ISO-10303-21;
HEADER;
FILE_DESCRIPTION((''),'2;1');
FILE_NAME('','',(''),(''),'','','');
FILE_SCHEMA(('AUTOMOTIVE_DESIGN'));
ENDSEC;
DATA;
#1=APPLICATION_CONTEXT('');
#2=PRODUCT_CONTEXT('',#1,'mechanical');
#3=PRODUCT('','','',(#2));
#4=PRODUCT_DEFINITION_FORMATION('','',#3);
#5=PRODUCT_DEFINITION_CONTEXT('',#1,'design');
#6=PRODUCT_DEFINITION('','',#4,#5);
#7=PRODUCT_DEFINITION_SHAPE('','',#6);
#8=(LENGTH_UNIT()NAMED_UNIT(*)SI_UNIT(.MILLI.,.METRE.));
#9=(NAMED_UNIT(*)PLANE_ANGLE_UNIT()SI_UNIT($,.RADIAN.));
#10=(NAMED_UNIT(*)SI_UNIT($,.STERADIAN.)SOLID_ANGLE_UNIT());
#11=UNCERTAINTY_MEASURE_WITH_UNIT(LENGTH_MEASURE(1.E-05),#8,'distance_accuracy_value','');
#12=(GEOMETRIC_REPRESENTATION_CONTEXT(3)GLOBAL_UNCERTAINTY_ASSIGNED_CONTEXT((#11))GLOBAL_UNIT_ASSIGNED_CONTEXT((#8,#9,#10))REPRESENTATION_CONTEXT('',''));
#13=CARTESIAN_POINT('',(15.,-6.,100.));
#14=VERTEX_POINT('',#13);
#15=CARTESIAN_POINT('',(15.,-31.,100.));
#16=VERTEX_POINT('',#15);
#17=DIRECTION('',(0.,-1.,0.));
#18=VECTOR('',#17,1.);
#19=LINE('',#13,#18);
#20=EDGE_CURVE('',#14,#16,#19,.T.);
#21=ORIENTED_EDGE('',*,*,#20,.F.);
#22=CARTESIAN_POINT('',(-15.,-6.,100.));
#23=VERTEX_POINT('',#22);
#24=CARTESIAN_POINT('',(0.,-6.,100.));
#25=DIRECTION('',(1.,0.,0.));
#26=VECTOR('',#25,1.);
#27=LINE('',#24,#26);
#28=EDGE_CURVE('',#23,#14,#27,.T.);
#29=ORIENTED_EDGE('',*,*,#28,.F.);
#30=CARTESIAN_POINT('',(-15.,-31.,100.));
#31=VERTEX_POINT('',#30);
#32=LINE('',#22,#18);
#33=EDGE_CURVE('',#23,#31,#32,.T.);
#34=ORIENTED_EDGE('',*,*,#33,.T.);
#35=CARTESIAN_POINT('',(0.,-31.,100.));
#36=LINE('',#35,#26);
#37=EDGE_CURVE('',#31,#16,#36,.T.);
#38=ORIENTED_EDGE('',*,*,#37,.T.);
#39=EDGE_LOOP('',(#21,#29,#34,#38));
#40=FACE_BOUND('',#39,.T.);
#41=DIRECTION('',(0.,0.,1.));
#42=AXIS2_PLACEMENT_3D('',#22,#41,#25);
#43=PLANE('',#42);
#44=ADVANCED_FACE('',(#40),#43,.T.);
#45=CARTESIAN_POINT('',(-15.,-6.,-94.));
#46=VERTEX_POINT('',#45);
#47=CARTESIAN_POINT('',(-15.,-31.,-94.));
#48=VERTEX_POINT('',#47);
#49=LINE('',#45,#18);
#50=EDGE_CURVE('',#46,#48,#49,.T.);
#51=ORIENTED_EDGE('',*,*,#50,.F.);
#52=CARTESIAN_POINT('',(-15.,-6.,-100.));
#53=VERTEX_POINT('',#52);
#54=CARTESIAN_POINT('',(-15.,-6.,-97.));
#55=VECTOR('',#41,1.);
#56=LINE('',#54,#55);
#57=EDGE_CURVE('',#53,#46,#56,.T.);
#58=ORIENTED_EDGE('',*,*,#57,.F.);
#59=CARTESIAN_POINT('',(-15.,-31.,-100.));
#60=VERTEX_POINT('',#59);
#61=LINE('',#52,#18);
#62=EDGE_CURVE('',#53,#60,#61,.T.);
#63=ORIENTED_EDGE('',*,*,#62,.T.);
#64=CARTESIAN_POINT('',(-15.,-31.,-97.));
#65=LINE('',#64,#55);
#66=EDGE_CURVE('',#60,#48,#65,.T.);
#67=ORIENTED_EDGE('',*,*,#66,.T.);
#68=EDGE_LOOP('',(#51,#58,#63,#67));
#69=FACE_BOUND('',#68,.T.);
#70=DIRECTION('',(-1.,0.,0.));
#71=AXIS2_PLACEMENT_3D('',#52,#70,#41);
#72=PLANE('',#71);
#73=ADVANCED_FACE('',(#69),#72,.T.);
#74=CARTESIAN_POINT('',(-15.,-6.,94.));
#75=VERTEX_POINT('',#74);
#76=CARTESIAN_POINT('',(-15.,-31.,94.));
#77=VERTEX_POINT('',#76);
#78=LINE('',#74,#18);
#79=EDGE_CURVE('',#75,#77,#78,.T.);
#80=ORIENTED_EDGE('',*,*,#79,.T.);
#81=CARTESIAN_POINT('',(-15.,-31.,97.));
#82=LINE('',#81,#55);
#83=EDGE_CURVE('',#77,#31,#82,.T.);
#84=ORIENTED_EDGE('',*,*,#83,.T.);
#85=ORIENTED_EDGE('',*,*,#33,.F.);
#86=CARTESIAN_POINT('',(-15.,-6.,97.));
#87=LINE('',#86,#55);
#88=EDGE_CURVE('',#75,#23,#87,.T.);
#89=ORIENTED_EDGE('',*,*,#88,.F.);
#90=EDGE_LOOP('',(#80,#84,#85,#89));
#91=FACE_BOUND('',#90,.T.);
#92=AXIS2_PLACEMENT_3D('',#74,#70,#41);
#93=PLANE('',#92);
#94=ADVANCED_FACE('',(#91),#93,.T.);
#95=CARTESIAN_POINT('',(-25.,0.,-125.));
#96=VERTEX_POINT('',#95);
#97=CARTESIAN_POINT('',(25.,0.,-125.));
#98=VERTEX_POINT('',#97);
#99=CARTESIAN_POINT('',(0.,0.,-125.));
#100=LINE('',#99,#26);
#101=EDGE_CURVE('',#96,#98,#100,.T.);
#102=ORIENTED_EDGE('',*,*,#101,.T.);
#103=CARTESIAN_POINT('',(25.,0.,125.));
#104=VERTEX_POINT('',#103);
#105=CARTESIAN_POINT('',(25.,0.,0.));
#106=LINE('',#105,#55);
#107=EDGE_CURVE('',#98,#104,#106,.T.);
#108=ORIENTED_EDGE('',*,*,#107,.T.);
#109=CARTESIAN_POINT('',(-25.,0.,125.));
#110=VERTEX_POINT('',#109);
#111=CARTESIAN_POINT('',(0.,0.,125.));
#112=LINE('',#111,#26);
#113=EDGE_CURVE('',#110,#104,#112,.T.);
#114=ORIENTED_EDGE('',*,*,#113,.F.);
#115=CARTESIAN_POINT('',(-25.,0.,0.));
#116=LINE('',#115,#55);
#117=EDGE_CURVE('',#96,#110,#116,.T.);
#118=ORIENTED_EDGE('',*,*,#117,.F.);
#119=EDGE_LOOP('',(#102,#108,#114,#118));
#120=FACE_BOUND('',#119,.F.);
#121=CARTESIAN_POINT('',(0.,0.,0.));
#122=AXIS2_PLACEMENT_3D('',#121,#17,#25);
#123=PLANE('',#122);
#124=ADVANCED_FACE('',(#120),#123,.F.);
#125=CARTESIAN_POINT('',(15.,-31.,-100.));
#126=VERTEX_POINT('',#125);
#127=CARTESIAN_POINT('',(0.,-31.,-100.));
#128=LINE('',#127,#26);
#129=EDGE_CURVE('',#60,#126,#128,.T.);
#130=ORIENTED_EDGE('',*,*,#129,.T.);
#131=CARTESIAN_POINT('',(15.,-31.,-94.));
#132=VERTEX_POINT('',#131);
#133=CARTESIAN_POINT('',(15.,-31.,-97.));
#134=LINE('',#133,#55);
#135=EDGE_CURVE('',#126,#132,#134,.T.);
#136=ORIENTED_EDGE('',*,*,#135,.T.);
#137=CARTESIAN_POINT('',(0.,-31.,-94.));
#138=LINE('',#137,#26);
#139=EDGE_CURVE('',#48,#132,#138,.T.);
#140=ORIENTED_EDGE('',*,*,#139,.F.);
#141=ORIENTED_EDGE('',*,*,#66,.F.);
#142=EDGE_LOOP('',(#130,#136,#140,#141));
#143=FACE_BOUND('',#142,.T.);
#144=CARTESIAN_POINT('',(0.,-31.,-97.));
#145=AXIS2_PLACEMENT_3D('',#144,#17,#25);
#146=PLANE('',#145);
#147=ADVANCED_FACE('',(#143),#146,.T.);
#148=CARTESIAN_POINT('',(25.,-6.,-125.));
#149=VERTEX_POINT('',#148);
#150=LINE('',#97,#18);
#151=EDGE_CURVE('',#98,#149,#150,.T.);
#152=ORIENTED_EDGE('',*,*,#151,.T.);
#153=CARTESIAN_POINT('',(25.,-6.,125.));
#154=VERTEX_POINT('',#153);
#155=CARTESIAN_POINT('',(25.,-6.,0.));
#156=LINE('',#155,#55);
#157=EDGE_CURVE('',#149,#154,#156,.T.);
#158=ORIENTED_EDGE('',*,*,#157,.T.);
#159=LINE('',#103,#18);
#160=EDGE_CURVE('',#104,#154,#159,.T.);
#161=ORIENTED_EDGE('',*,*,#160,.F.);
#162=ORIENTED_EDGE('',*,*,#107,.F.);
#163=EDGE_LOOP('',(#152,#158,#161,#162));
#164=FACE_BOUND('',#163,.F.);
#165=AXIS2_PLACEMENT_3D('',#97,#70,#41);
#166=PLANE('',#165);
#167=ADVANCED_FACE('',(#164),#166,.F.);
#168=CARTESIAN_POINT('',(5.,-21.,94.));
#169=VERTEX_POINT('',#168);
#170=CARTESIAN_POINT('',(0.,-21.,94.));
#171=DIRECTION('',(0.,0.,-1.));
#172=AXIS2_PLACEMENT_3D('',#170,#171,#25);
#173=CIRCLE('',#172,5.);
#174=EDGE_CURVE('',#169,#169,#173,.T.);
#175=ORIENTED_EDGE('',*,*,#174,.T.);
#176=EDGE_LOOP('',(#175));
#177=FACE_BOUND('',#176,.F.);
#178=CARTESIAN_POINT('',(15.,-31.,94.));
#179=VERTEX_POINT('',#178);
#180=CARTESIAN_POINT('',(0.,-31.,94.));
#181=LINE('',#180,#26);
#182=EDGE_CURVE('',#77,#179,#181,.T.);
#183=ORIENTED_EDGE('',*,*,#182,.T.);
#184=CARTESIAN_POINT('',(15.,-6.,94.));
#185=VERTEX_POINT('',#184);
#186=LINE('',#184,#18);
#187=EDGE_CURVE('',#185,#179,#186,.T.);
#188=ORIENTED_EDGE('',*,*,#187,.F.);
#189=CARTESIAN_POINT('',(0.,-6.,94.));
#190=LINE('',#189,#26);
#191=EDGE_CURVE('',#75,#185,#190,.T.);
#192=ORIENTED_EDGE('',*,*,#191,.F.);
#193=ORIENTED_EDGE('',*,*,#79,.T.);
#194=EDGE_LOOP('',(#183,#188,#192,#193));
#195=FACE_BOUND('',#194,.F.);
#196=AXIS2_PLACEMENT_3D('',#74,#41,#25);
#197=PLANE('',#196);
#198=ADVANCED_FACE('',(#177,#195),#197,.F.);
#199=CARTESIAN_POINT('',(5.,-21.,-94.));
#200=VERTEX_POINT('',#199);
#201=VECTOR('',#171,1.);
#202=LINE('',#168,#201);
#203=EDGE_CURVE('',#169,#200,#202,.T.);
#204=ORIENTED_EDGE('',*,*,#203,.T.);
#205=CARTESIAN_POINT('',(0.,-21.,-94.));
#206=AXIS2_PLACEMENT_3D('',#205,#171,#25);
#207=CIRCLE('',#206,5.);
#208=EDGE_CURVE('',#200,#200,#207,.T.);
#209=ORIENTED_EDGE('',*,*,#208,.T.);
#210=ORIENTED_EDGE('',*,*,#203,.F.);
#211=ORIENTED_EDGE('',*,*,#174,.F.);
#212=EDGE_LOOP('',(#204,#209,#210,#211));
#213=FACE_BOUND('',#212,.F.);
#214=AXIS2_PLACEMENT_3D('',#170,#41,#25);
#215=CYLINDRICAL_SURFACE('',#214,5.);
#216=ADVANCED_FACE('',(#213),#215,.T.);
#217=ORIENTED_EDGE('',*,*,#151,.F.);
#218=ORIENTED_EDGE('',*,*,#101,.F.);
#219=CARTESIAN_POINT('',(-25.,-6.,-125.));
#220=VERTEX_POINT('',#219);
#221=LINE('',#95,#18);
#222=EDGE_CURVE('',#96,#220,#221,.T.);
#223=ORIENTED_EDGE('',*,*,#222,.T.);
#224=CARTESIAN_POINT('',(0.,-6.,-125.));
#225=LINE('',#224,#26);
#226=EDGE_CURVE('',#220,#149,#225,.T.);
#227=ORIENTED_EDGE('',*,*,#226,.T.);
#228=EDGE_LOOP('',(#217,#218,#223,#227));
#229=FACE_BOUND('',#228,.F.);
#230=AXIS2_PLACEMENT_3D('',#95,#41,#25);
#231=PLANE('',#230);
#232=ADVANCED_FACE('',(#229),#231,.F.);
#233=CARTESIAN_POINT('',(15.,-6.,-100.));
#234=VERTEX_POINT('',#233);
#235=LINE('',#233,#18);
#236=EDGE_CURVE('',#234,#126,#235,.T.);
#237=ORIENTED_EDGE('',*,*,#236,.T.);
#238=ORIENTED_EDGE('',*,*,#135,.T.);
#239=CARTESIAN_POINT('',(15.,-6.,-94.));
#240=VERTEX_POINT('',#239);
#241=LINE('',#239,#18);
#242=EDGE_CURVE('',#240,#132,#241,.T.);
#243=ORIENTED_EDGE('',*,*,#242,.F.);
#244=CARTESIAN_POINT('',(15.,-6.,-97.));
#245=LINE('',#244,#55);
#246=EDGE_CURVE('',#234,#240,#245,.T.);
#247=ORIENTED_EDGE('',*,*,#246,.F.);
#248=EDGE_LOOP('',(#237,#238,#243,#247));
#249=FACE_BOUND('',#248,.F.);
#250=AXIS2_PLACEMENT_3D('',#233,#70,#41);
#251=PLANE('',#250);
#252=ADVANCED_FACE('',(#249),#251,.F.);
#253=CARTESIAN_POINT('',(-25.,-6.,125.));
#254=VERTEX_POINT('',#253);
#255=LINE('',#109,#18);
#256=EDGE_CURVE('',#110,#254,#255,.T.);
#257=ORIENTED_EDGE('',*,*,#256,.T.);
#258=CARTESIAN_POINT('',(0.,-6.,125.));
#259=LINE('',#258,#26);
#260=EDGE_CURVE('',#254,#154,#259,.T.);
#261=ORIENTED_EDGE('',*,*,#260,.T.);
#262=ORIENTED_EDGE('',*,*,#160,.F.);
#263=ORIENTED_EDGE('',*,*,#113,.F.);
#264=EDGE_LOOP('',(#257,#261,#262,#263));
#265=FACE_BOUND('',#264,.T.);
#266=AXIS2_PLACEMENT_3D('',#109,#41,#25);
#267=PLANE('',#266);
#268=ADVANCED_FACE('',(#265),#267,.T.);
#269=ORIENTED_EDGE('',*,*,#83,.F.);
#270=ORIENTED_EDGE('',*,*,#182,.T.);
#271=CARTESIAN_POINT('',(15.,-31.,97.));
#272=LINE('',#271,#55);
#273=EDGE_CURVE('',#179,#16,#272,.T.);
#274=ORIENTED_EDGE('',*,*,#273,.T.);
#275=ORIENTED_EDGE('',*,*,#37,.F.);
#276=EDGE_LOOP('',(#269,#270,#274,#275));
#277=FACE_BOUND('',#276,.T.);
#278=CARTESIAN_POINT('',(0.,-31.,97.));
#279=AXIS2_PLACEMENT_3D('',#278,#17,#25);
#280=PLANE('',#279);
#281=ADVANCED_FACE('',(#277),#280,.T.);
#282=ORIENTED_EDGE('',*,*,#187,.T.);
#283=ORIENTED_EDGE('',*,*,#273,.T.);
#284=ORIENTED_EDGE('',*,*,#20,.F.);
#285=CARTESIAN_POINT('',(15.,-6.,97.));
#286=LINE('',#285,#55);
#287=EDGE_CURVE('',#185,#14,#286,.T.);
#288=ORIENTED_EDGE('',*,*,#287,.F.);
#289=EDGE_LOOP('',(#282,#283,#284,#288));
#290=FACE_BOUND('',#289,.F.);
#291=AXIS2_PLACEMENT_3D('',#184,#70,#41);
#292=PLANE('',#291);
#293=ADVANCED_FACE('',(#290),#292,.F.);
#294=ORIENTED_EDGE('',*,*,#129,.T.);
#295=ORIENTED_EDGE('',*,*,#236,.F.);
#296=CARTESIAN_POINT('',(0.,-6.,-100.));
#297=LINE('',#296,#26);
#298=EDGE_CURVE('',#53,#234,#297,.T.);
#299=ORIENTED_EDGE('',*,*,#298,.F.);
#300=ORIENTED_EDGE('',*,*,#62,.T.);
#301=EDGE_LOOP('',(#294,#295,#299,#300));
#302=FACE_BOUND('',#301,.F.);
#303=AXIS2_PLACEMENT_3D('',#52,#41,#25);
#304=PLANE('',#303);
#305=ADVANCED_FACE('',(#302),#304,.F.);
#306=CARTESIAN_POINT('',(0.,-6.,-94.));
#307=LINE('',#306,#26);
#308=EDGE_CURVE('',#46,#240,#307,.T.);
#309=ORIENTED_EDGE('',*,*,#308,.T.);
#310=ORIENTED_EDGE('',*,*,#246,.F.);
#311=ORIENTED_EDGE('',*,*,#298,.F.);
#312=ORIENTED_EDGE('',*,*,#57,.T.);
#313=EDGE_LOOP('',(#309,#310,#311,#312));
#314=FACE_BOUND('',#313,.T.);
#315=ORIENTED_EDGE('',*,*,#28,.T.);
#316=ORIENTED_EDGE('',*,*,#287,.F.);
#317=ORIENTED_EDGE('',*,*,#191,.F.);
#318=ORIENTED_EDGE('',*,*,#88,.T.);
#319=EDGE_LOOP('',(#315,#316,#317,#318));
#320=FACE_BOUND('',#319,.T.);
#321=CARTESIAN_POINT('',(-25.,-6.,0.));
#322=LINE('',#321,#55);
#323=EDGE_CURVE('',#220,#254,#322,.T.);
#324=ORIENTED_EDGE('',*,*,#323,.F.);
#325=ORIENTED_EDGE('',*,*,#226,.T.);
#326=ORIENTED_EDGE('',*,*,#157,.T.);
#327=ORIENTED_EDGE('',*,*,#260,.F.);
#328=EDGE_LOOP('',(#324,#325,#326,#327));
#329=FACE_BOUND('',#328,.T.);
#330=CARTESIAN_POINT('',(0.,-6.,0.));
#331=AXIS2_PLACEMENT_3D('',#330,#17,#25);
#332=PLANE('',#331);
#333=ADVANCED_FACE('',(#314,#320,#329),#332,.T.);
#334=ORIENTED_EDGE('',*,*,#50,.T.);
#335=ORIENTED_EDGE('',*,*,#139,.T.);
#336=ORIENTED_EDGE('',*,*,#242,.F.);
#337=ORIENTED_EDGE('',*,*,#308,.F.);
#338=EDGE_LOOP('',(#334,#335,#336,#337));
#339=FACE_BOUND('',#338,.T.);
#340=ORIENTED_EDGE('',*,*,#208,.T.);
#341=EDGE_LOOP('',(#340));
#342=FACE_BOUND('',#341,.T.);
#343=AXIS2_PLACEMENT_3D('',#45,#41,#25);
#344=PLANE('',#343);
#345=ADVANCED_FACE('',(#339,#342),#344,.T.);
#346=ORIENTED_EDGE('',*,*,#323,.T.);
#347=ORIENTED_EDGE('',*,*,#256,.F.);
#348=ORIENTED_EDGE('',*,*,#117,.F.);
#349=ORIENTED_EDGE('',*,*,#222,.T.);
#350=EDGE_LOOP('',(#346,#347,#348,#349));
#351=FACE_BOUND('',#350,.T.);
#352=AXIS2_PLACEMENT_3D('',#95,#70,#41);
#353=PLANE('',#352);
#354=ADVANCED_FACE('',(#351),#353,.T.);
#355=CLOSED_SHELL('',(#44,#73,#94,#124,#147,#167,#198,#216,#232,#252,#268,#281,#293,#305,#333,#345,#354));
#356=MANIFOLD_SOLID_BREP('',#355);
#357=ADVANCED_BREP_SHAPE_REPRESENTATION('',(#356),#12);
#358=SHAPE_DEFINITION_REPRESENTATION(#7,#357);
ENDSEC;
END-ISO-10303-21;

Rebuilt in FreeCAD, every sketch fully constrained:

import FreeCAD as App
import Part
import Sketcher

V = App.Vector
Q = App.Units.Quantity


def add_polygon(sketch, points):
    """Adds a closed chain of lines whose ends are joined by coincident constraints."""
    first, n = sketch.GeometryCount, len(points)
    for a, b in zip(points, points[1:] + points[:1]):
        sketch.addGeometry(Part.LineSegment(App.Vector(*a, 0), App.Vector(*b, 0)), False)
    for i in range(n):
        sketch.addConstraint(Sketcher.Constraint("Coincident", first + i, 2, first + (i + 1) % n, 1))

doc = App.newDocument("Part")
body = doc.addObject("PartDesign::Body", "Body")

sketch1 = body.newObject("Sketcher::SketchObject", "Sketch")
sketch1.AttachmentSupport = (doc.getObject("XZ_Plane"), [""])
sketch1.MapMode = "FlatFace"
add_polygon(sketch1, [(-25, 125), (-25, -125), (25, -125), (25, 125)])
sketch1.addConstraint(Sketcher.Constraint("Vertical", 0))
sketch1.addConstraint(Sketcher.Constraint("Horizontal", 1))
sketch1.addConstraint(Sketcher.Constraint("Vertical", 2))
sketch1.addConstraint(Sketcher.Constraint("Horizontal", 3))
sketch1.addConstraint(Sketcher.Constraint("Symmetric", 0, 2, 2, 2, -1, 1))
sketch1.addConstraint(Sketcher.Constraint("DistanceX", 1, 1, 1, 2, Q("50 mm")))
sketch1.addConstraint(Sketcher.Constraint("DistanceY", 0, 2, 0, 1, Q("250 mm")))
pad1 = body.newObject("PartDesign::Pad", "Pad")
pad1.Profile = sketch1
pad1.Length = 6

sketch2 = body.newObject("Sketcher::SketchObject", "Sketch001")
sketch2.AttachmentSupport = (doc.getObject("XZ_Plane"), [""])
sketch2.MapMode = "FlatFace"
sketch2.AttachmentOffset = App.Placement(V(0, 0, 6), App.Rotation())
add_polygon(sketch2, [(-15, 100), (-15, 94), (15, 94), (15, 100)])
add_polygon(sketch2, [(-15, -94), (-15, -100), (15, -100), (15, -94)])
sketch2.addConstraint(Sketcher.Constraint("Vertical", 0))
sketch2.addConstraint(Sketcher.Constraint("Horizontal", 1))
sketch2.addConstraint(Sketcher.Constraint("Vertical", 2))
sketch2.addConstraint(Sketcher.Constraint("Horizontal", 3))
sketch2.addConstraint(Sketcher.Constraint("Vertical", 4))
sketch2.addConstraint(Sketcher.Constraint("Horizontal", 5))
sketch2.addConstraint(Sketcher.Constraint("Vertical", 6))
sketch2.addConstraint(Sketcher.Constraint("Horizontal", 7))
sketch2.addConstraint(Sketcher.Constraint("Symmetric", 2, 2, 4, 2, -1, 1))
sketch2.addConstraint(Sketcher.Constraint("Symmetric", 0, 2, 6, 2, -1, 1))
sketch2.addConstraint(Sketcher.Constraint("Vertical", 3, 2, 4, 2))
sketch2.addConstraint(Sketcher.Constraint("DistanceX", 1, 1, 1, 2, Q("30 mm")))
sketch2.addConstraint(Sketcher.Constraint("DistanceY", 0, 2, 0, 1, Q("6 mm")))
sketch2.addConstraint(Sketcher.Constraint("DistanceY", -1, 1, 0, 2, Q("94 mm")))
pad2 = body.newObject("PartDesign::Pad", "Pad001")
pad2.Profile = sketch2
pad2.Length = 25

sketch3 = body.newObject("Sketcher::SketchObject", "Sketch002")
sketch3.AttachmentSupport = (doc.getObject("XY_Plane"), [""])
sketch3.MapMode = "FlatFace"
sketch3.AttachmentOffset = App.Placement(V(0, 0, 94), App.Rotation())
sketch3.addGeometry(Part.Circle(V(0, -21, 0), V(0, 0, 1), 5), False)
sketch3.addConstraint(Sketcher.Constraint("PointOnObject", 0, 3, -2))
sketch3.addConstraint(Sketcher.Constraint("Diameter", 0, Q("10 mm")))
sketch3.addConstraint(Sketcher.Constraint("DistanceY", 0, 3, -1, 1, Q("21 mm")))
pad3 = body.newObject("PartDesign::Pad", "Pad002")
pad3.Profile = sketch3
pad3.Type = "UpToLast"
pad3.Reversed = True

doc.recompute()
